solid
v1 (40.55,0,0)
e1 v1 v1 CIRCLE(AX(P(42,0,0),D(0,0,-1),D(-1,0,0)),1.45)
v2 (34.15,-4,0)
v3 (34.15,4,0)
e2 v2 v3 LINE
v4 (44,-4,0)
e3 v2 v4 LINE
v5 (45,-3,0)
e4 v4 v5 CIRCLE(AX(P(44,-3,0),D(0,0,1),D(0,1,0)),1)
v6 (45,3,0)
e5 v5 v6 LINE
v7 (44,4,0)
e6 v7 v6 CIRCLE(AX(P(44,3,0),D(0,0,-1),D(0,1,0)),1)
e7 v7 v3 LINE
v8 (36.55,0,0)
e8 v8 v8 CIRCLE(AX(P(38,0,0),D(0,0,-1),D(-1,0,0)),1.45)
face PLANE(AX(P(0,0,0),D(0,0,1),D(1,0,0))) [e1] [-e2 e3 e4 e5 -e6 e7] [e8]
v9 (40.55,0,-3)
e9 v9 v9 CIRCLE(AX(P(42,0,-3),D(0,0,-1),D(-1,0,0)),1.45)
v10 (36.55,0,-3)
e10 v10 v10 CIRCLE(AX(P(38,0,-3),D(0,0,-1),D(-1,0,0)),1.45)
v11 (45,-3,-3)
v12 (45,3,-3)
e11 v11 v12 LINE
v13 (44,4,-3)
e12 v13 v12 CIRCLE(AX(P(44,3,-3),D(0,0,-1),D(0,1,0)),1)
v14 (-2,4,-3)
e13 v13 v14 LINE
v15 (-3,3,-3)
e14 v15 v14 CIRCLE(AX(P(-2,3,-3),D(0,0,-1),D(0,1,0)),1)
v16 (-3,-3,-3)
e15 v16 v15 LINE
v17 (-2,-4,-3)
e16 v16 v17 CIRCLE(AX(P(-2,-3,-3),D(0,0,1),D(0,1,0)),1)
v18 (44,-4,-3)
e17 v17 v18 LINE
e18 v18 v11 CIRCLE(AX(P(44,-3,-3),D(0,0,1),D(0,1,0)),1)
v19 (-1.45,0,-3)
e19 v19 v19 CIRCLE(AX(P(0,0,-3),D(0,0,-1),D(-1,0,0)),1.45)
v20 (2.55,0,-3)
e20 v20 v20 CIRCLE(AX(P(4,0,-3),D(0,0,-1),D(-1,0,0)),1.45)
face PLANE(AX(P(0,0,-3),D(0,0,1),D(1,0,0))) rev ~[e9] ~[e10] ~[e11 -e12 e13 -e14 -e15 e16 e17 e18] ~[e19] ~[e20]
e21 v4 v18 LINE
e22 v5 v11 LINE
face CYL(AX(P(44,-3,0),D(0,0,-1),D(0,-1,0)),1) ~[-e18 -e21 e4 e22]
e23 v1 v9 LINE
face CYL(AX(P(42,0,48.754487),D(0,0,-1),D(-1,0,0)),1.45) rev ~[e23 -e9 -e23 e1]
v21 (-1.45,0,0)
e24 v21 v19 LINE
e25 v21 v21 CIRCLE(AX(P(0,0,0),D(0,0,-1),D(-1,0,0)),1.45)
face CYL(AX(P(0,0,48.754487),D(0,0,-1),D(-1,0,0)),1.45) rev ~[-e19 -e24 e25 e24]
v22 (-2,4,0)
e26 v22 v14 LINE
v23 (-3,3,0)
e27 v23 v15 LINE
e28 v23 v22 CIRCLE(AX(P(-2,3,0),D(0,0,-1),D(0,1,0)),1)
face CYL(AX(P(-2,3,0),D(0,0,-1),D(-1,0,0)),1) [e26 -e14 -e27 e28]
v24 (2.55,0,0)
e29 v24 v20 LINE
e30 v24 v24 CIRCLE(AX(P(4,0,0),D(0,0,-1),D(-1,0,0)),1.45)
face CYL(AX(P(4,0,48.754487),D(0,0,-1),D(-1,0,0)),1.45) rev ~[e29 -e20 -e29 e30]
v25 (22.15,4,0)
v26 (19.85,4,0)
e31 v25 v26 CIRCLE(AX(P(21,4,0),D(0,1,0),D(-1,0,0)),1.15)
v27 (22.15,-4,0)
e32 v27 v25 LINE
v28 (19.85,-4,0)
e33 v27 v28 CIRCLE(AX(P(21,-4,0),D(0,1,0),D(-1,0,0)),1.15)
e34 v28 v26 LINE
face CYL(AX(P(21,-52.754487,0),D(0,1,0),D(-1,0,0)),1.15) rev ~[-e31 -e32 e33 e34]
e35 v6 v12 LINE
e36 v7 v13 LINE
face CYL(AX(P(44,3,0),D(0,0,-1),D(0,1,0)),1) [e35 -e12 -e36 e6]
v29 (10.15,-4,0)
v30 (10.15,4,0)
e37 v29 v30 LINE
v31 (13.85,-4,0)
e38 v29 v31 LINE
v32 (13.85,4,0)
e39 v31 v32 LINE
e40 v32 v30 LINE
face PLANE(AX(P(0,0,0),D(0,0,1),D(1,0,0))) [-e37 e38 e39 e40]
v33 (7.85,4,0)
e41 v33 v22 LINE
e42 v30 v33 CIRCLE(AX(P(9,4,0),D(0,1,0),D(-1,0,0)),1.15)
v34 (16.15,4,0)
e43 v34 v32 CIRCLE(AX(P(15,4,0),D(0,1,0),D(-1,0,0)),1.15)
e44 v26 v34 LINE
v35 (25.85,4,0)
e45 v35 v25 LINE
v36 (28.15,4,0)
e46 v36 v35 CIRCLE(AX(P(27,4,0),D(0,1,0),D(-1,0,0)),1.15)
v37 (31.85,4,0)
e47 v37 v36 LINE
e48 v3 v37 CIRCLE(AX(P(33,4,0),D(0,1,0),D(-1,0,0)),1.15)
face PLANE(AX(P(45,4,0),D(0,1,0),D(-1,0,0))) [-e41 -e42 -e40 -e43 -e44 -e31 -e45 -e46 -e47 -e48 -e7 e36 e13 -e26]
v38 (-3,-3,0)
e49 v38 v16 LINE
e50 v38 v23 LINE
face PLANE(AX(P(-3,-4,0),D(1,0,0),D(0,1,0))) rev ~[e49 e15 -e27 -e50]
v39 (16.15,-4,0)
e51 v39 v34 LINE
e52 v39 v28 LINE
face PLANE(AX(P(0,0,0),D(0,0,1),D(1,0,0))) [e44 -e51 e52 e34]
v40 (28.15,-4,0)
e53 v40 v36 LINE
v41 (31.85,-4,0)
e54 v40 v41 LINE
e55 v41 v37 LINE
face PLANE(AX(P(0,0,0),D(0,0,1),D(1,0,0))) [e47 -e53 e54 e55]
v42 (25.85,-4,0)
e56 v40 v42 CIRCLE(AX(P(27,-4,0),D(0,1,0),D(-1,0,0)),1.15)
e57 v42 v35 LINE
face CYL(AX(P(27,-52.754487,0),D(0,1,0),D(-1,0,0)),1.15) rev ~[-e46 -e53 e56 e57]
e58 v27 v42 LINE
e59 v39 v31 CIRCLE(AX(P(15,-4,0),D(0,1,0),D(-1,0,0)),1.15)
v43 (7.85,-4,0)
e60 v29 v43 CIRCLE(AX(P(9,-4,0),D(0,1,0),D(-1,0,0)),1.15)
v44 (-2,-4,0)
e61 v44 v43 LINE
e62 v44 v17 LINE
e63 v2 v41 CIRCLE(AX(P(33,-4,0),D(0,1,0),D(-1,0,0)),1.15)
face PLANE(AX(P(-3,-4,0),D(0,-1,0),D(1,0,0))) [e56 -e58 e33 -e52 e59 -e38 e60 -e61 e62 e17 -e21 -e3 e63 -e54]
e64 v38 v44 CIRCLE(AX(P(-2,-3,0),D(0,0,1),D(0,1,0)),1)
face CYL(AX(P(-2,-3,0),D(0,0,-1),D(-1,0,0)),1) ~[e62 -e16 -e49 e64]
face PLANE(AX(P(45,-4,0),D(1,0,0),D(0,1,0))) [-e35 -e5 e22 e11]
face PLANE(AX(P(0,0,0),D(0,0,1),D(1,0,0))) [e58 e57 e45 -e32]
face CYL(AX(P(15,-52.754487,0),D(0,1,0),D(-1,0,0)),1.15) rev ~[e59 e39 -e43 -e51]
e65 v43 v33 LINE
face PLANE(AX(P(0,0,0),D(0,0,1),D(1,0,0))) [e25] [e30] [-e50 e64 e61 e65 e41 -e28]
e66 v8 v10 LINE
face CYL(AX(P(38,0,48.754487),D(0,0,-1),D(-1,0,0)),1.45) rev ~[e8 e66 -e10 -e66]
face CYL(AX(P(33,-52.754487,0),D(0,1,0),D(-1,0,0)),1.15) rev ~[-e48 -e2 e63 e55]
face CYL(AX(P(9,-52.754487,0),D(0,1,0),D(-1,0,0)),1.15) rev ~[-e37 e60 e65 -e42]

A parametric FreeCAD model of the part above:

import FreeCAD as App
import Part
import Sketcher
Q = App.Units.Quantity


def edges_at(feature, points):
    """Names of the edges that pass closest to the given points."""
    edges = feature.Shape.Edges
    near = lambda p: min(range(len(edges)), key=lambda i: edges[i].distToShape(Part.Vertex(*p))[0])
    return sorted({f"Edge{near(p) + 1}" for p in points})

doc = App.newDocument("Part")
body = doc.addObject("PartDesign::Body", "Body")

sketch1 = body.newObject("Sketcher::SketchObject", "Sketch")
sketch1.AttachmentSupport = (doc.getObject("XY_Plane"), [""])
sketch1.MapMode = "FlatFace"
sketch1.addGeometry([
    Part.LineSegment(App.Vector(-3, 4, 0), App.Vector(-3, -4, 0)),
    Part.LineSegment(App.Vector(-3, -4, 0), App.Vector(45, -4, 0)),
    Part.LineSegment(App.Vector(45, -4, 0), App.Vector(45, 4, 0)),
    Part.LineSegment(App.Vector(45, 4, 0), App.Vector(-3, 4, 0)),
], False)
sketch1.addConstraint([
    Sketcher.Constraint("Coincident", 0, 2, 1, 1),
    Sketcher.Constraint("Coincident", 1, 2, 2, 1),
    Sketcher.Constraint("Coincident", 2, 2, 3, 1),
    Sketcher.Constraint("Coincident", 3, 2, 0, 1),
    Sketcher.Constraint("Vertical", 0),
    Sketcher.Constraint("Horizontal", 1),
    Sketcher.Constraint("Vertical", 2),
    Sketcher.Constraint("Horizontal", 3),
    Sketcher.Constraint("DistanceX", 1, 1, 1, 2, Q("48 mm")),
    Sketcher.Constraint("DistanceY", 0, 2, 0, 1, Q("8 mm")),
    Sketcher.Constraint("DistanceX", 0, 2, -1, 1, Q("3 mm")),
    Sketcher.Constraint("DistanceY", 0, 2, -1, 1, Q("4 mm")),
])
pad1 = body.newObject("PartDesign::Pad", "Pad")
pad1.Profile = sketch1
pad1.Length = 3
pad1.Reversed = True

sketch2 = body.newObject("Sketcher::SketchObject", "Sketch001")
sketch2.AttachmentSupport = (doc.getObject("XY_Plane"), [""])
sketch2.MapMode = "FlatFace"
sketch2.addGeometry([
    Part.Circle(App.Vector(0, 0, 0), App.Vector(0, 0, 1), 1.4),
    Part.Circle(App.Vector(4, 0, 0), App.Vector(0, 0, 1), 1.4),
    Part.Circle(App.Vector(38, 0, 0), App.Vector(0, 0, 1), 1.4),
    Part.Circle(App.Vector(42, 0, 0), App.Vector(0, 0, 1), 1.4),
], False)
sketch2.addConstraint([
    Sketcher.Constraint("Coincident", 0, 3, -1, 1),
    Sketcher.Constraint("Equal", 0, 1),
    Sketcher.Constraint("Equal", 1, 2),
    Sketcher.Constraint("Equal", 2, 3),
    Sketcher.Constraint("PointOnObject", 1, 3, -1),
    Sketcher.Constraint("PointOnObject", 2, 3, -1),
    Sketcher.Constraint("PointOnObject", 3, 3, -1),
    Sketcher.Constraint("Diameter", 0, Q("2.9 mm")),
    Sketcher.Constraint("DistanceX", -1, 1, 1, 3, Q("4 mm")),
    Sketcher.Constraint("DistanceX", -1, 1, 2, 3, Q("38 mm")),
    Sketcher.Constraint("DistanceX", -1, 1, 3, 3, Q("42 mm")),
])
doc.recompute()
hole = body.newObject("PartDesign::Hole", "Hole")
hole.Profile = sketch2
hole.ThreadType = "None"
hole.Diameter = 2.9
hole.DepthType = "ThroughAll"

sketch3 = body.newObject("Sketcher::SketchObject", "Sketch002")
sketch3.AttachmentSupport = (doc.getObject("XZ_Plane"), [""])
sketch3.MapMode = "FlatFace"
sketch3.AttachmentOffset = App.Placement(App.Vector(0, 0, 4), App.Rotation())
sketch3.addGeometry([
    Part.Circle(App.Vector(9, 0, 0), App.Vector(0, 0, 1), 1.1),
    Part.Circle(App.Vector(15, 0, 0), App.Vector(0, 0, 1), 1.1),
    Part.Circle(App.Vector(21, 0, 0), App.Vector(0, 0, 1), 1.1),
    Part.Circle(App.Vector(27, 0, 0), App.Vector(0, 0, 1), 1.1),
    Part.Circle(App.Vector(33, 0, 0), App.Vector(0, 0, 1), 1.1),
], False)
sketch3.addConstraint([
    Sketcher.Constraint("Equal", 0, 1),
    Sketcher.Constraint("Equal", 1, 2),
    Sketcher.Constraint("Equal", 2, 3),
    Sketcher.Constraint("Equal", 3, 4),
    Sketcher.Constraint("PointOnObject", 0, 3, -1),
    Sketcher.Constraint("PointOnObject", 1, 3, -1),
    Sketcher.Constraint("PointOnObject", 2, 3, -1),
    Sketcher.Constraint("PointOnObject", 3, 3, -1),
    Sketcher.Constraint("PointOnObject", 4, 3, -1),
    Sketcher.Constraint("Diameter", 0, Q("2.3 mm")),
    Sketcher.Constraint("DistanceX", -1, 1, 0, 3, Q("9 mm")),
    Sketcher.Constraint("DistanceX", -1, 1, 1, 3, Q("15 mm")),
    Sketcher.Constraint("DistanceX", -1, 1, 2, 3, Q("21 mm")),
    Sketcher.Constraint("DistanceX", -1, 1, 3, 3, Q("27 mm")),
    Sketcher.Constraint("DistanceX", -1, 1, 4, 3, Q("33 mm")),
])
doc.recompute()
hole2 = body.newObject("PartDesign::Hole", "Hole001")
hole2.Profile = sketch3
hole2.ThreadType = "None"
hole2.Diameter = 2.3
hole2.DepthType = "ThroughAll"
doc.recompute()

fillet = body.newObject("PartDesign::Fillet", "Fillet")
fillet.Base = (hole2, edges_at(hole2, [
    (-3, -4, -1.5),
    (45, -4, -1.5),
    (45, 4, -1.5),
    (-3, 4, -1.5),
]))
fillet.Radius = 1

doc.recompute()
